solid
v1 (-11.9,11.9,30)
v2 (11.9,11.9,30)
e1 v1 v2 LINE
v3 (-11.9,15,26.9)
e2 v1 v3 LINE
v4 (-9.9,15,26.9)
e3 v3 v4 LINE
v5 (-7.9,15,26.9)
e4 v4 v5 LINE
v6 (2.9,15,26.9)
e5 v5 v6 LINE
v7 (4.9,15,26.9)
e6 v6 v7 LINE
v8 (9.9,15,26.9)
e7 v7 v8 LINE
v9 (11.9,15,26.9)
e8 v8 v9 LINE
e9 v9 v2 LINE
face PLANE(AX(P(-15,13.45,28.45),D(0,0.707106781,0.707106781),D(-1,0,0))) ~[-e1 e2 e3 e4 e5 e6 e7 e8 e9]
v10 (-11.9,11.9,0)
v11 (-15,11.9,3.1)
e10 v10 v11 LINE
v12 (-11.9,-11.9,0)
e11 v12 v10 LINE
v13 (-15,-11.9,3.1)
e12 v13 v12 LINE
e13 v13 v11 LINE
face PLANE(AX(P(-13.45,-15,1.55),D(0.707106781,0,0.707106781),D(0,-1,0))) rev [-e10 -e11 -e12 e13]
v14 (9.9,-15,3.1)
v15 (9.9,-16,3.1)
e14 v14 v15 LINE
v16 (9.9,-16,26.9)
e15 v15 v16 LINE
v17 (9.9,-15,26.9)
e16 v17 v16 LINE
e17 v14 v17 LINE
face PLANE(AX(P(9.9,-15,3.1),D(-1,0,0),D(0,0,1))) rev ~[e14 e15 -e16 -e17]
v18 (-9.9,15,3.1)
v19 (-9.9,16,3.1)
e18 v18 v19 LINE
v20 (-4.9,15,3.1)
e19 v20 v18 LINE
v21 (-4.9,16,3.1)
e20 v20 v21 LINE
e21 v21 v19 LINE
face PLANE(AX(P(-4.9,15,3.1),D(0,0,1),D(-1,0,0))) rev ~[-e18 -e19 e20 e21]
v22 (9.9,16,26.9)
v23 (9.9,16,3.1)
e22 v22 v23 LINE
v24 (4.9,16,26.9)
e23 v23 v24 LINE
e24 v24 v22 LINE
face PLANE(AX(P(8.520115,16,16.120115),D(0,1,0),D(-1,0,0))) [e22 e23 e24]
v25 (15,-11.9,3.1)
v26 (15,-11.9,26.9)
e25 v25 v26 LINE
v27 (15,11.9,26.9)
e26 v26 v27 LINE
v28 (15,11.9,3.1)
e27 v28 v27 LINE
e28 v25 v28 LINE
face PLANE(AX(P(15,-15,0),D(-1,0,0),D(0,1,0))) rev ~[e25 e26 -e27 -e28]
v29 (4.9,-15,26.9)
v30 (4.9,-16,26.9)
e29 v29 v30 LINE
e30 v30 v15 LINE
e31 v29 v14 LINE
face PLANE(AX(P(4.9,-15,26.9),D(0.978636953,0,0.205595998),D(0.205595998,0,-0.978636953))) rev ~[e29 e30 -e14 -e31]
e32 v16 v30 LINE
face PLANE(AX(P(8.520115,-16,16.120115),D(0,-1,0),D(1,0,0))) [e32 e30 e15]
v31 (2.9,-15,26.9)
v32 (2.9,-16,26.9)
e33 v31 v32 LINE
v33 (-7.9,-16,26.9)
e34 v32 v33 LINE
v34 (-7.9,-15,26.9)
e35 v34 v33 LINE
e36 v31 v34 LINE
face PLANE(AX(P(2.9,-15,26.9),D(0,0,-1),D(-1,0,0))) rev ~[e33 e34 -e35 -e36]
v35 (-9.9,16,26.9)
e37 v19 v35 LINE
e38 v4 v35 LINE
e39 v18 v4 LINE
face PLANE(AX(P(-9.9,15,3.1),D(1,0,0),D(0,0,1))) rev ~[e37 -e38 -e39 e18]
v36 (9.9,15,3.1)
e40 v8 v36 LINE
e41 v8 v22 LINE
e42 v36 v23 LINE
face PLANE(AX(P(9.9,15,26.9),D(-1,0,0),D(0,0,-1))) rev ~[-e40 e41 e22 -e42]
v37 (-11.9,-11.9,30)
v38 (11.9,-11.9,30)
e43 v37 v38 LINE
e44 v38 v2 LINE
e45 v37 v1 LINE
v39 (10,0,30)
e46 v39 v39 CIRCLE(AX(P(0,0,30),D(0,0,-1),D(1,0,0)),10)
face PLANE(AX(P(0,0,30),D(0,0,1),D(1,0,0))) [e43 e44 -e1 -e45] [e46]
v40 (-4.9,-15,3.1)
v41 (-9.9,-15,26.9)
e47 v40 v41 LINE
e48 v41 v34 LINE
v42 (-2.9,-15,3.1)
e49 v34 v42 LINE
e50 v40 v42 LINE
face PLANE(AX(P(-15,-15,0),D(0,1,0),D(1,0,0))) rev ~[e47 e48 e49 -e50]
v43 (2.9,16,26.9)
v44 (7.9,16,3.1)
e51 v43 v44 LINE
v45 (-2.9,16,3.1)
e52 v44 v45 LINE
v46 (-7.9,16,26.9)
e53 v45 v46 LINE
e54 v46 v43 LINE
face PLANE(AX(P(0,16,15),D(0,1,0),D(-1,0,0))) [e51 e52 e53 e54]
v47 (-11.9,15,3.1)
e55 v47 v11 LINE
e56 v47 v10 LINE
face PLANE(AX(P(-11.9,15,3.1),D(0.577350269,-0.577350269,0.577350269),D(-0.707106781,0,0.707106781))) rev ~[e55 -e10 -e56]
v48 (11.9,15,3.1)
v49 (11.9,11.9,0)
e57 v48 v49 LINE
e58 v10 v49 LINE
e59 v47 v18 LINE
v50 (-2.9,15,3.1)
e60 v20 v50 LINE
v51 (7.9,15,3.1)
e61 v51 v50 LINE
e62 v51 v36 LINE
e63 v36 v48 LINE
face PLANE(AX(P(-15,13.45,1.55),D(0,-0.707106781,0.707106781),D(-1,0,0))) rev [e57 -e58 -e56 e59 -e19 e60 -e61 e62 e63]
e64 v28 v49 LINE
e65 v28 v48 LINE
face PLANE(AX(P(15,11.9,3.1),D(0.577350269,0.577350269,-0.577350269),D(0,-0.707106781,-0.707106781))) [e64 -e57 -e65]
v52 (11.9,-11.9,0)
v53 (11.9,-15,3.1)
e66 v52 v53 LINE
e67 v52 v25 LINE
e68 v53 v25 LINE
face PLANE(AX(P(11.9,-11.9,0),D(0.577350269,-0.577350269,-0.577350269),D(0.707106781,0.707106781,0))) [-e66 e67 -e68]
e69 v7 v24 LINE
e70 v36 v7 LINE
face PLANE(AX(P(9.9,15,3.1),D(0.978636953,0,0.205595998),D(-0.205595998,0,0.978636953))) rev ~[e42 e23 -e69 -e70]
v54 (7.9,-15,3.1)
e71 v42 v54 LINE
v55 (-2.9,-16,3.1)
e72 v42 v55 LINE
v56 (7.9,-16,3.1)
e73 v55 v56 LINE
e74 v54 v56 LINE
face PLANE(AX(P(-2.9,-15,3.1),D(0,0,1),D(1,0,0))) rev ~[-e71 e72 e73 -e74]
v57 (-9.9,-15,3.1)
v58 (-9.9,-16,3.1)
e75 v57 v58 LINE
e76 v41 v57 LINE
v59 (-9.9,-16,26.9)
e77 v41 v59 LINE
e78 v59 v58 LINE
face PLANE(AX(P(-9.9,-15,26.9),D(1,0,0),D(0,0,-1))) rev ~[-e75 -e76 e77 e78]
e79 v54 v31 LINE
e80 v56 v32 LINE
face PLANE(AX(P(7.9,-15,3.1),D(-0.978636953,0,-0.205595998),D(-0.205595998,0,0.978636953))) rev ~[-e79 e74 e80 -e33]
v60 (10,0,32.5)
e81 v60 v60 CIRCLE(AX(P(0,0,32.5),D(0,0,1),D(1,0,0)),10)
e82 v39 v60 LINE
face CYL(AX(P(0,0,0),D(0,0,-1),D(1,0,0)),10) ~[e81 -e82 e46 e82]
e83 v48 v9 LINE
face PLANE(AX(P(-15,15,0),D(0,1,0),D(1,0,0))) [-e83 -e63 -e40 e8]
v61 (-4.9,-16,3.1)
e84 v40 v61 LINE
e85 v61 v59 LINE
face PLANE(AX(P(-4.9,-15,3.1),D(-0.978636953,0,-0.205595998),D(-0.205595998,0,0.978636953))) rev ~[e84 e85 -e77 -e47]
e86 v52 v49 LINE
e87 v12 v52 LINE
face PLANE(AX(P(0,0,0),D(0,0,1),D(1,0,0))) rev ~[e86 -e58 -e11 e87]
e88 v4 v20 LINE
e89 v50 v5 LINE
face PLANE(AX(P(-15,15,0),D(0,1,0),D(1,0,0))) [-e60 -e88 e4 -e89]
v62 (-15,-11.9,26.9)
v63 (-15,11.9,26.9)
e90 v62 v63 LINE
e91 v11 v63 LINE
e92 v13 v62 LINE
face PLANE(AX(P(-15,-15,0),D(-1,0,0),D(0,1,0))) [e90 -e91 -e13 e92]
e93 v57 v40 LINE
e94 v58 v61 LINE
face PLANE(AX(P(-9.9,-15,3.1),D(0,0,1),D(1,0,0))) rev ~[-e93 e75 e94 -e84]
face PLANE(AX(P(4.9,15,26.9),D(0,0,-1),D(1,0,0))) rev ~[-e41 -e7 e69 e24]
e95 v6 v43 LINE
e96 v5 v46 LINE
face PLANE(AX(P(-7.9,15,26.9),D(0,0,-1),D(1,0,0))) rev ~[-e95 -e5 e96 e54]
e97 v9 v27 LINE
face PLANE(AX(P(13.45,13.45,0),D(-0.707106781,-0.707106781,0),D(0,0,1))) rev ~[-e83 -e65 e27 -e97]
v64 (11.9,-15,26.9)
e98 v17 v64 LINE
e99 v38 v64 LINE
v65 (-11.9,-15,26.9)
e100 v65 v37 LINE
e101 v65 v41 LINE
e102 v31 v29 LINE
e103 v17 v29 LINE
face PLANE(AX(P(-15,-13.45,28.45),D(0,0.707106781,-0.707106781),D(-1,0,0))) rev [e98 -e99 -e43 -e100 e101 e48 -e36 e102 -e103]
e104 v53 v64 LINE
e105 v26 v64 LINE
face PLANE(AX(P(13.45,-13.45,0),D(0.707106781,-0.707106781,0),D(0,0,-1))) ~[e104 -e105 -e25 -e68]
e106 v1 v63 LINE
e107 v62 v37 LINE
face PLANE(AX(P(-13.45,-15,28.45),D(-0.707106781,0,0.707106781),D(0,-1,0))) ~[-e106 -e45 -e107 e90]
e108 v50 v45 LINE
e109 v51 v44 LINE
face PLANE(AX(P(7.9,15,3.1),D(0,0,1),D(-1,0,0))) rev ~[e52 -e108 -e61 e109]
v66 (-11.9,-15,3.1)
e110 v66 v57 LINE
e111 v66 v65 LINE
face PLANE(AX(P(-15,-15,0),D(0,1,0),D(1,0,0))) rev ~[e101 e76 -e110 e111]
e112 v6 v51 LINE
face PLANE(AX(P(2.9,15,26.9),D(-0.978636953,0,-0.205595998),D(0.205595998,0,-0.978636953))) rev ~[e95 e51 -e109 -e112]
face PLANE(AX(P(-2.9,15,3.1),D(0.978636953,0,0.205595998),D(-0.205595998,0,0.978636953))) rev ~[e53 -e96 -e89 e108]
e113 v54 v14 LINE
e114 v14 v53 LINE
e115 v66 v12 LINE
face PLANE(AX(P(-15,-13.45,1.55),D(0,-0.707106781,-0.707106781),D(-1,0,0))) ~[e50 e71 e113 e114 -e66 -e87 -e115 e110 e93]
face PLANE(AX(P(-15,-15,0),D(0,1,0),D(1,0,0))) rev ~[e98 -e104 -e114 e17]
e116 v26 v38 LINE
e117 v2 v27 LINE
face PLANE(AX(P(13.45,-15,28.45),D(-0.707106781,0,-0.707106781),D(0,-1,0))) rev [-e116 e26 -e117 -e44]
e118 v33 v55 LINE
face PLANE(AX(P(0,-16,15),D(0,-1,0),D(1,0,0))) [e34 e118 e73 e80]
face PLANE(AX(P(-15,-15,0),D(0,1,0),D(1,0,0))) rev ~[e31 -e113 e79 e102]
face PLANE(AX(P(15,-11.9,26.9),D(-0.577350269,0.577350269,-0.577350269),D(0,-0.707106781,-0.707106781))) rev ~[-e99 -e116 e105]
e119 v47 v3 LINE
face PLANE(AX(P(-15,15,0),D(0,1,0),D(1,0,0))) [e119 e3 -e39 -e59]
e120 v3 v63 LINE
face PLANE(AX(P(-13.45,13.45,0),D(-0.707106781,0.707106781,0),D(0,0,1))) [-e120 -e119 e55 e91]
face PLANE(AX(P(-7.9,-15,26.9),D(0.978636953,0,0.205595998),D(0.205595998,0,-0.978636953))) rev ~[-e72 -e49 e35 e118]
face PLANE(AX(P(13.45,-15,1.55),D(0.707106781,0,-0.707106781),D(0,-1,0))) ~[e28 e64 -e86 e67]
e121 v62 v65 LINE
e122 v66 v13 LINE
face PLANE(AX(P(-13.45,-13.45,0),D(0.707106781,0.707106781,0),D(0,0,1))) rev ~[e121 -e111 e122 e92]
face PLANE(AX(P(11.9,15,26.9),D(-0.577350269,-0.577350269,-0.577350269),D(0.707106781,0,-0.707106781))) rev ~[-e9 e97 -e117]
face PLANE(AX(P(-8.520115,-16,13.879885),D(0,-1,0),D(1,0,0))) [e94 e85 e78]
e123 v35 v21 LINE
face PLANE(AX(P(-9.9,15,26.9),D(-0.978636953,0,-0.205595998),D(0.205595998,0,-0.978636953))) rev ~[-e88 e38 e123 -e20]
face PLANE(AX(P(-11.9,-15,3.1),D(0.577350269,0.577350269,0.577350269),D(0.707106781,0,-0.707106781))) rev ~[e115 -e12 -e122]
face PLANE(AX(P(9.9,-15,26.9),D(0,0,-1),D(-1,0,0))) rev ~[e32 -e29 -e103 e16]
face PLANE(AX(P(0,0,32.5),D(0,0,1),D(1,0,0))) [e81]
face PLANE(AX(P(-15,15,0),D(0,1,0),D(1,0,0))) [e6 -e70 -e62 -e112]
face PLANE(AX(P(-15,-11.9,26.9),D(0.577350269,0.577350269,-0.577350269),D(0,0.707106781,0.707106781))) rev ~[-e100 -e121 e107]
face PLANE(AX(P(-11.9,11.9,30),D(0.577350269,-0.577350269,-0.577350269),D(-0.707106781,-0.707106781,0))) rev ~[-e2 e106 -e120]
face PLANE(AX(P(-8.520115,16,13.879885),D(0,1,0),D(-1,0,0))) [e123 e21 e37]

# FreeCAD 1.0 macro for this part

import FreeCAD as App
import Part
import Sketcher

V = App.Vector

doc = App.newDocument("Part")
params = doc.addObject("Spreadsheet::Sheet", "Params")
for row, (alias, value) in enumerate([
    ("sketch1_width", "30 mm"),
    ("pad1_length", "30 mm"),
    ("chamfer_size", "3.1 mm"),
    ("sketch2_diameter", "20 mm"),
    ("pad2_length", "32.5 mm"),
    ("sketch3_width", "5 mm"),
    ("sketch3_width2", "10.8 mm"),
    ("sketch3_height", "23.8 mm"),
    ("pad3_length", "1 mm"),
    ("sketch4_width", "5 mm"),
    ("sketch4_width2", "10.8 mm"),
    ("sketch4_height", "23.8 mm"),
    ("pad4_length", "1 mm"),
], start=1):
    params.set(f"A{row}", alias)
    params.set(f"B{row}", "=" + value)
    params.setAlias(f"B{row}", alias)

body = doc.addObject("PartDesign::Body", "Body")

sketch1 = body.newObject("Sketcher::SketchObject", "Sketch")
sketch1.AttachmentSupport = (doc.getObject("XY_Plane"), [""])
sketch1.MapMode = "FlatFace"
sketch1.addGeometry(Part.LineSegment(V(-15, 15, 0), V(-15, -15, 0)), False)
sketch1.addGeometry(Part.LineSegment(V(-15, -15, 0), V(15, -15, 0)), False)
sketch1.addGeometry(Part.LineSegment(V(15, -15, 0), V(15, 15, 0)), False)
sketch1.addGeometry(Part.LineSegment(V(15, 15, 0), V(-15, 15, 0)), False)
sketch1.addConstraint(Sketcher.Constraint("Coincident", 0, 2, 1, 1))
sketch1.addConstraint(Sketcher.Constraint("Coincident", 1, 2, 2, 1))
sketch1.addConstraint(Sketcher.Constraint("Coincident", 2, 2, 3, 1))
sketch1.addConstraint(Sketcher.Constraint("Coincident", 3, 2, 0, 1))
sketch1.addConstraint(Sketcher.Constraint("Vertical", 0))
sketch1.addConstraint(Sketcher.Constraint("Horizontal", 1))
sketch1.addConstraint(Sketcher.Constraint("Vertical", 2))
sketch1.addConstraint(Sketcher.Constraint("Horizontal", 3))
sketch1.addConstraint(Sketcher.Constraint("Symmetric", 0, 2, 2, 2, -1, 1))
sketch1.addConstraint(Sketcher.Constraint("Equal", 3, 0))
sketch1.addConstraint(Sketcher.Constraint("DistanceX", 1, 1, 1, 2, 30.0))
sketch1.setExpression("Constraints[10]", "Params.sketch1_width")
pad1 = body.newObject("PartDesign::Pad", "Pad")
pad1.Profile = sketch1
pad1.setExpression("Length", "Params.pad1_length")
doc.recompute()

chamfer = body.newObject("PartDesign::Chamfer", "Chamfer")
chamfer.Base = (pad1, ["Edge1"])
chamfer.UseAllEdges = True
chamfer.setExpression("Size", "Params.chamfer_size")

sketch2 = body.newObject("Sketcher::SketchObject", "Sketch001")
sketch2.AttachmentSupport = (doc.getObject("XY_Plane"), [""])
sketch2.MapMode = "FlatFace"
sketch2.addGeometry(Part.Circle(V(0, 0, 0), V(0, 0, 1), 10), False)
sketch2.addConstraint(Sketcher.Constraint("Coincident", 0, 3, -1, 1))
sketch2.addConstraint(Sketcher.Constraint("Diameter", 0, 20.0))
sketch2.setExpression("Constraints[1]", "Params.sketch2_diameter")
pad2 = body.newObject("PartDesign::Pad", "Pad001")
pad2.Profile = sketch2
pad2.setExpression("Length", "Params.pad2_length")

sketch3 = body.newObject("Sketcher::SketchObject", "Sketch002")
sketch3.AttachmentSupport = (doc.getObject("XZ_Plane"), [""])
sketch3.MapMode = "FlatFace"
sketch3.AttachmentOffset = App.Placement(V(0, 0, 15), App.Rotation())
sketch3.addGeometry(Part.LineSegment(V(-10, 27, 0), V(-10, 3, 0)), False)
sketch3.addGeometry(Part.LineSegment(V(-10, 3, 0), V(-5, 3, 0)), False)
sketch3.addGeometry(Part.LineSegment(V(-5, 3, 0), V(-10, 27, 0)), False)
sketch3.addGeometry(Part.LineSegment(V(10, 3, 0), V(10, 27, 0)), False)
sketch3.addGeometry(Part.LineSegment(V(10, 27, 0), V(5, 27, 0)), False)
sketch3.addGeometry(Part.LineSegment(V(5, 27, 0), V(10, 3, 0)), False)
sketch3.addGeometry(Part.LineSegment(V(-8, 27, 0), V(-3, 3, 0)), False)
sketch3.addGeometry(Part.LineSegment(V(-3, 3, 0), V(8, 3, 0)), False)
sketch3.addGeometry(Part.LineSegment(V(8, 3, 0), V(3, 27, 0)), False)
sketch3.addGeometry(Part.LineSegment(V(3, 27, 0), V(-8, 27, 0)), False)
sketch3.addConstraint(Sketcher.Constraint("Coincident", 0, 2, 1, 1))
sketch3.addConstraint(Sketcher.Constraint("Coincident", 1, 2, 2, 1))
sketch3.addConstraint(Sketcher.Constraint("Coincident", 2, 2, 0, 1))
sketch3.addConstraint(Sketcher.Constraint("Coincident", 3, 2, 4, 1))
sketch3.addConstraint(Sketcher.Constraint("Coincident", 4, 2, 5, 1))
sketch3.addConstraint(Sketcher.Constraint("Coincident", 5, 2, 3, 1))
sketch3.addConstraint(Sketcher.Constraint("Coincident", 6, 2, 7, 1))
sketch3.addConstraint(Sketcher.Constraint("Coincident", 7, 2, 8, 1))
sketch3.addConstraint(Sketcher.Constraint("Coincident", 8, 2, 9, 1))
sketch3.addConstraint(Sketcher.Constraint("Coincident", 9, 2, 6, 1))
sketch3.addConstraint(Sketcher.Constraint("Vertical", 0))
sketch3.addConstraint(Sketcher.Constraint("Horizontal", 1))
sketch3.addConstraint(Sketcher.Constraint("Vertical", 3))
sketch3.addConstraint(Sketcher.Constraint("Horizontal", 4))
sketch3.addConstraint(Sketcher.Constraint("Horizontal", 7))
sketch3.addConstraint(Sketcher.Constraint("Horizontal", 9))
sketch3.addConstraint(Sketcher.Constraint("Symmetric", 2, 2, 3, 2, -2))
sketch3.addConstraint(Sketcher.Constraint("Parallel", 2, 5))
sketch3.addConstraint(Sketcher.Constraint("Parallel", 5, 6))
sketch3.addConstraint(Sketcher.Constraint("Parallel", 6, 8))
sketch3.addConstraint(Sketcher.Constraint("Horizontal", 1, 2, 5, 2))
sketch3.addConstraint(Sketcher.Constraint("Horizontal", 5, 2, 6, 2))
sketch3.addConstraint(Sketcher.Constraint("Horizontal", 4, 2, 8, 2))
sketch3.addConstraint(Sketcher.Constraint("DistanceX", 1, 1, 1, 2, 5.0))
sketch3.addConstraint(Sketcher.Constraint("DistanceX", 7, 1, 7, 2, 10.8))
sketch3.addConstraint(Sketcher.Constraint("DistanceY", 0, 2, 0, 1, 23.8))
sketch3.addConstraint(Sketcher.Constraint("DistanceX", 1, 2, 6, 2, 2.0))
sketch3.addConstraint(Sketcher.Constraint("DistanceX", 7, 2, 5, 2, 2.0))
sketch3.addConstraint(Sketcher.Constraint("DistanceY", -1, 1, 0, 2, 3.1))
sketch3.setExpression("Constraints[23]", "Params.sketch3_width")
sketch3.setExpression("Constraints[24]", "Params.sketch3_width2")
sketch3.setExpression("Constraints[25]", "Params.sketch3_height")
pad3 = body.newObject("PartDesign::Pad", "Pad002")
pad3.Profile = sketch3
pad3.setExpression("Length", "Params.pad3_length")

sketch4 = body.newObject("Sketcher::SketchObject", "Sketch003")
sketch4.AttachmentSupport = (doc.getObject("XZ_Plane"), [""])
sketch4.MapMode = "FlatFace"
sketch4.AttachmentOffset = App.Placement(V(0, 0, -15), App.Rotation())
sketch4.addGeometry(Part.LineSegment(V(3, 27, 0), V(8, 3, 0)), False)
sketch4.addGeometry(Part.LineSegment(V(8, 3, 0), V(-3, 3, 0)), False)
sketch4.addGeometry(Part.LineSegment(V(-3, 3, 0), V(-8, 27, 0)), False)
sketch4.addGeometry(Part.LineSegment(V(-8, 27, 0), V(3, 27, 0)), False)
sketch4.addGeometry(Part.LineSegment(V(-10, 27, 0), V(-5, 3, 0)), False)
sketch4.addGeometry(Part.LineSegment(V(-5, 3, 0), V(-10, 3, 0)), False)
sketch4.addGeometry(Part.LineSegment(V(-10, 3, 0), V(-10, 27, 0)), False)
sketch4.addGeometry(Part.LineSegment(V(5, 27, 0), V(10, 27, 0)), False)
sketch4.addGeometry(Part.LineSegment(V(10, 27, 0), V(10, 3, 0)), False)
sketch4.addGeometry(Part.LineSegment(V(10, 3, 0), V(5, 27, 0)), False)
sketch4.addConstraint(Sketcher.Constraint("Coincident", 0, 2, 1, 1))
sketch4.addConstraint(Sketcher.Constraint("Coincident", 1, 2, 2, 1))
sketch4.addConstraint(Sketcher.Constraint("Coincident", 2, 2, 3, 1))
sketch4.addConstraint(Sketcher.Constraint("Coincident", 3, 2, 0, 1))
sketch4.addConstraint(Sketcher.Constraint("Coincident", 4, 2, 5, 1))
sketch4.addConstraint(Sketcher.Constraint("Coincident", 5, 2, 6, 1))
sketch4.addConstraint(Sketcher.Constraint("Coincident", 6, 2, 4, 1))
sketch4.addConstraint(Sketcher.Constraint("Coincident", 7, 2, 8, 1))
sketch4.addConstraint(Sketcher.Constraint("Coincident", 8, 2, 9, 1))
sketch4.addConstraint(Sketcher.Constraint("Coincident", 9, 2, 7, 1))
sketch4.addConstraint(Sketcher.Constraint("Horizontal", 1))
sketch4.addConstraint(Sketcher.Constraint("Horizontal", 3))
sketch4.addConstraint(Sketcher.Constraint("Horizontal", 5))
sketch4.addConstraint(Sketcher.Constraint("Vertical", 6))
sketch4.addConstraint(Sketcher.Constraint("Horizontal", 7))
sketch4.addConstraint(Sketcher.Constraint("Vertical", 8))
sketch4.addConstraint(Sketcher.Constraint("Symmetric", 6, 2, 7, 2, -2))
sketch4.addConstraint(Sketcher.Constraint("Parallel", 0, 2))
sketch4.addConstraint(Sketcher.Constraint("Parallel", 2, 4))
sketch4.addConstraint(Sketcher.Constraint("Parallel", 4, 9))
sketch4.addConstraint(Sketcher.Constraint("Horizontal", 1, 2, 4, 2))
sketch4.addConstraint(Sketcher.Constraint("Horizontal", 3, 2, 6, 2))
sketch4.addConstraint(Sketcher.Constraint("Horizontal", 5, 2, 8, 2))
sketch4.addConstraint(Sketcher.Constraint("DistanceX", 5, 2, 5, 1, 5.0))
sketch4.addConstraint(Sketcher.Constraint("DistanceX", 1, 2, 1, 1, 10.8))
sketch4.addConstraint(Sketcher.Constraint("DistanceY", 6, 1, 6, 2, 23.8))
sketch4.addConstraint(Sketcher.Constraint("DistanceX", 4, 2, 1, 2, 2.0))
sketch4.addConstraint(Sketcher.Constraint("DistanceX", 3, 2, 7, 2, 7.0))
sketch4.addConstraint(Sketcher.Constraint("DistanceY", -1, 1, 0, 2, 3.1))
sketch4.setExpression("Constraints[23]", "Params.sketch4_width")
sketch4.setExpression("Constraints[24]", "Params.sketch4_width2")
sketch4.setExpression("Constraints[25]", "Params.sketch4_height")
pad4 = body.newObject("PartDesign::Pad", "Pad003")
pad4.Profile = sketch4
pad4.setExpression("Length", "Params.pad4_length")
pad4.Reversed = True

doc.recompute()
